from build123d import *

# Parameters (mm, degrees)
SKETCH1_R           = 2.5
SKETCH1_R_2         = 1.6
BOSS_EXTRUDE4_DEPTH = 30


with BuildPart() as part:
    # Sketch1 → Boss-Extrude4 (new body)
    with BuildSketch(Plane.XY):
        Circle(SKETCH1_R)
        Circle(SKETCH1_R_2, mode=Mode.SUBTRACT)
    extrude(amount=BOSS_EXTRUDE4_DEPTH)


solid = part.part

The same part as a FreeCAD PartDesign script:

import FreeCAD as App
import Part
import Sketcher

V = App.Vector

doc = App.newDocument("Part")
body = doc.addObject("PartDesign::Body", "Body")

# Sketch on XY plane
sketch1 = body.newObject("Sketcher::SketchObject", "Sketch")
sketch1.AttachmentSupport = (doc.getObject("XY_Plane"), [""])
sketch1.MapMode = "FlatFace"
sketch1.addGeometry([
    Part.Circle(V(0, 0, 0), V(0, 0, 1), 2.5),
    Part.Circle(V(0, 0, 0), V(0, 0, 1), 1.6),
], False)
sketch1.addConstraint([
    Sketcher.Constraint("Coincident", 0, 3, -1, 1),
    Sketcher.Constraint("Coincident", 1, 3, -1, 1),
    Sketcher.Constraint("Diameter", 0, 5.0),
    Sketcher.Constraint("Diameter", 1, 3.2),
])
pad1 = body.newObject("PartDesign::Pad", "Pad")
pad1.Profile = sketch1
pad1.Length = 30

doc.recompute()
